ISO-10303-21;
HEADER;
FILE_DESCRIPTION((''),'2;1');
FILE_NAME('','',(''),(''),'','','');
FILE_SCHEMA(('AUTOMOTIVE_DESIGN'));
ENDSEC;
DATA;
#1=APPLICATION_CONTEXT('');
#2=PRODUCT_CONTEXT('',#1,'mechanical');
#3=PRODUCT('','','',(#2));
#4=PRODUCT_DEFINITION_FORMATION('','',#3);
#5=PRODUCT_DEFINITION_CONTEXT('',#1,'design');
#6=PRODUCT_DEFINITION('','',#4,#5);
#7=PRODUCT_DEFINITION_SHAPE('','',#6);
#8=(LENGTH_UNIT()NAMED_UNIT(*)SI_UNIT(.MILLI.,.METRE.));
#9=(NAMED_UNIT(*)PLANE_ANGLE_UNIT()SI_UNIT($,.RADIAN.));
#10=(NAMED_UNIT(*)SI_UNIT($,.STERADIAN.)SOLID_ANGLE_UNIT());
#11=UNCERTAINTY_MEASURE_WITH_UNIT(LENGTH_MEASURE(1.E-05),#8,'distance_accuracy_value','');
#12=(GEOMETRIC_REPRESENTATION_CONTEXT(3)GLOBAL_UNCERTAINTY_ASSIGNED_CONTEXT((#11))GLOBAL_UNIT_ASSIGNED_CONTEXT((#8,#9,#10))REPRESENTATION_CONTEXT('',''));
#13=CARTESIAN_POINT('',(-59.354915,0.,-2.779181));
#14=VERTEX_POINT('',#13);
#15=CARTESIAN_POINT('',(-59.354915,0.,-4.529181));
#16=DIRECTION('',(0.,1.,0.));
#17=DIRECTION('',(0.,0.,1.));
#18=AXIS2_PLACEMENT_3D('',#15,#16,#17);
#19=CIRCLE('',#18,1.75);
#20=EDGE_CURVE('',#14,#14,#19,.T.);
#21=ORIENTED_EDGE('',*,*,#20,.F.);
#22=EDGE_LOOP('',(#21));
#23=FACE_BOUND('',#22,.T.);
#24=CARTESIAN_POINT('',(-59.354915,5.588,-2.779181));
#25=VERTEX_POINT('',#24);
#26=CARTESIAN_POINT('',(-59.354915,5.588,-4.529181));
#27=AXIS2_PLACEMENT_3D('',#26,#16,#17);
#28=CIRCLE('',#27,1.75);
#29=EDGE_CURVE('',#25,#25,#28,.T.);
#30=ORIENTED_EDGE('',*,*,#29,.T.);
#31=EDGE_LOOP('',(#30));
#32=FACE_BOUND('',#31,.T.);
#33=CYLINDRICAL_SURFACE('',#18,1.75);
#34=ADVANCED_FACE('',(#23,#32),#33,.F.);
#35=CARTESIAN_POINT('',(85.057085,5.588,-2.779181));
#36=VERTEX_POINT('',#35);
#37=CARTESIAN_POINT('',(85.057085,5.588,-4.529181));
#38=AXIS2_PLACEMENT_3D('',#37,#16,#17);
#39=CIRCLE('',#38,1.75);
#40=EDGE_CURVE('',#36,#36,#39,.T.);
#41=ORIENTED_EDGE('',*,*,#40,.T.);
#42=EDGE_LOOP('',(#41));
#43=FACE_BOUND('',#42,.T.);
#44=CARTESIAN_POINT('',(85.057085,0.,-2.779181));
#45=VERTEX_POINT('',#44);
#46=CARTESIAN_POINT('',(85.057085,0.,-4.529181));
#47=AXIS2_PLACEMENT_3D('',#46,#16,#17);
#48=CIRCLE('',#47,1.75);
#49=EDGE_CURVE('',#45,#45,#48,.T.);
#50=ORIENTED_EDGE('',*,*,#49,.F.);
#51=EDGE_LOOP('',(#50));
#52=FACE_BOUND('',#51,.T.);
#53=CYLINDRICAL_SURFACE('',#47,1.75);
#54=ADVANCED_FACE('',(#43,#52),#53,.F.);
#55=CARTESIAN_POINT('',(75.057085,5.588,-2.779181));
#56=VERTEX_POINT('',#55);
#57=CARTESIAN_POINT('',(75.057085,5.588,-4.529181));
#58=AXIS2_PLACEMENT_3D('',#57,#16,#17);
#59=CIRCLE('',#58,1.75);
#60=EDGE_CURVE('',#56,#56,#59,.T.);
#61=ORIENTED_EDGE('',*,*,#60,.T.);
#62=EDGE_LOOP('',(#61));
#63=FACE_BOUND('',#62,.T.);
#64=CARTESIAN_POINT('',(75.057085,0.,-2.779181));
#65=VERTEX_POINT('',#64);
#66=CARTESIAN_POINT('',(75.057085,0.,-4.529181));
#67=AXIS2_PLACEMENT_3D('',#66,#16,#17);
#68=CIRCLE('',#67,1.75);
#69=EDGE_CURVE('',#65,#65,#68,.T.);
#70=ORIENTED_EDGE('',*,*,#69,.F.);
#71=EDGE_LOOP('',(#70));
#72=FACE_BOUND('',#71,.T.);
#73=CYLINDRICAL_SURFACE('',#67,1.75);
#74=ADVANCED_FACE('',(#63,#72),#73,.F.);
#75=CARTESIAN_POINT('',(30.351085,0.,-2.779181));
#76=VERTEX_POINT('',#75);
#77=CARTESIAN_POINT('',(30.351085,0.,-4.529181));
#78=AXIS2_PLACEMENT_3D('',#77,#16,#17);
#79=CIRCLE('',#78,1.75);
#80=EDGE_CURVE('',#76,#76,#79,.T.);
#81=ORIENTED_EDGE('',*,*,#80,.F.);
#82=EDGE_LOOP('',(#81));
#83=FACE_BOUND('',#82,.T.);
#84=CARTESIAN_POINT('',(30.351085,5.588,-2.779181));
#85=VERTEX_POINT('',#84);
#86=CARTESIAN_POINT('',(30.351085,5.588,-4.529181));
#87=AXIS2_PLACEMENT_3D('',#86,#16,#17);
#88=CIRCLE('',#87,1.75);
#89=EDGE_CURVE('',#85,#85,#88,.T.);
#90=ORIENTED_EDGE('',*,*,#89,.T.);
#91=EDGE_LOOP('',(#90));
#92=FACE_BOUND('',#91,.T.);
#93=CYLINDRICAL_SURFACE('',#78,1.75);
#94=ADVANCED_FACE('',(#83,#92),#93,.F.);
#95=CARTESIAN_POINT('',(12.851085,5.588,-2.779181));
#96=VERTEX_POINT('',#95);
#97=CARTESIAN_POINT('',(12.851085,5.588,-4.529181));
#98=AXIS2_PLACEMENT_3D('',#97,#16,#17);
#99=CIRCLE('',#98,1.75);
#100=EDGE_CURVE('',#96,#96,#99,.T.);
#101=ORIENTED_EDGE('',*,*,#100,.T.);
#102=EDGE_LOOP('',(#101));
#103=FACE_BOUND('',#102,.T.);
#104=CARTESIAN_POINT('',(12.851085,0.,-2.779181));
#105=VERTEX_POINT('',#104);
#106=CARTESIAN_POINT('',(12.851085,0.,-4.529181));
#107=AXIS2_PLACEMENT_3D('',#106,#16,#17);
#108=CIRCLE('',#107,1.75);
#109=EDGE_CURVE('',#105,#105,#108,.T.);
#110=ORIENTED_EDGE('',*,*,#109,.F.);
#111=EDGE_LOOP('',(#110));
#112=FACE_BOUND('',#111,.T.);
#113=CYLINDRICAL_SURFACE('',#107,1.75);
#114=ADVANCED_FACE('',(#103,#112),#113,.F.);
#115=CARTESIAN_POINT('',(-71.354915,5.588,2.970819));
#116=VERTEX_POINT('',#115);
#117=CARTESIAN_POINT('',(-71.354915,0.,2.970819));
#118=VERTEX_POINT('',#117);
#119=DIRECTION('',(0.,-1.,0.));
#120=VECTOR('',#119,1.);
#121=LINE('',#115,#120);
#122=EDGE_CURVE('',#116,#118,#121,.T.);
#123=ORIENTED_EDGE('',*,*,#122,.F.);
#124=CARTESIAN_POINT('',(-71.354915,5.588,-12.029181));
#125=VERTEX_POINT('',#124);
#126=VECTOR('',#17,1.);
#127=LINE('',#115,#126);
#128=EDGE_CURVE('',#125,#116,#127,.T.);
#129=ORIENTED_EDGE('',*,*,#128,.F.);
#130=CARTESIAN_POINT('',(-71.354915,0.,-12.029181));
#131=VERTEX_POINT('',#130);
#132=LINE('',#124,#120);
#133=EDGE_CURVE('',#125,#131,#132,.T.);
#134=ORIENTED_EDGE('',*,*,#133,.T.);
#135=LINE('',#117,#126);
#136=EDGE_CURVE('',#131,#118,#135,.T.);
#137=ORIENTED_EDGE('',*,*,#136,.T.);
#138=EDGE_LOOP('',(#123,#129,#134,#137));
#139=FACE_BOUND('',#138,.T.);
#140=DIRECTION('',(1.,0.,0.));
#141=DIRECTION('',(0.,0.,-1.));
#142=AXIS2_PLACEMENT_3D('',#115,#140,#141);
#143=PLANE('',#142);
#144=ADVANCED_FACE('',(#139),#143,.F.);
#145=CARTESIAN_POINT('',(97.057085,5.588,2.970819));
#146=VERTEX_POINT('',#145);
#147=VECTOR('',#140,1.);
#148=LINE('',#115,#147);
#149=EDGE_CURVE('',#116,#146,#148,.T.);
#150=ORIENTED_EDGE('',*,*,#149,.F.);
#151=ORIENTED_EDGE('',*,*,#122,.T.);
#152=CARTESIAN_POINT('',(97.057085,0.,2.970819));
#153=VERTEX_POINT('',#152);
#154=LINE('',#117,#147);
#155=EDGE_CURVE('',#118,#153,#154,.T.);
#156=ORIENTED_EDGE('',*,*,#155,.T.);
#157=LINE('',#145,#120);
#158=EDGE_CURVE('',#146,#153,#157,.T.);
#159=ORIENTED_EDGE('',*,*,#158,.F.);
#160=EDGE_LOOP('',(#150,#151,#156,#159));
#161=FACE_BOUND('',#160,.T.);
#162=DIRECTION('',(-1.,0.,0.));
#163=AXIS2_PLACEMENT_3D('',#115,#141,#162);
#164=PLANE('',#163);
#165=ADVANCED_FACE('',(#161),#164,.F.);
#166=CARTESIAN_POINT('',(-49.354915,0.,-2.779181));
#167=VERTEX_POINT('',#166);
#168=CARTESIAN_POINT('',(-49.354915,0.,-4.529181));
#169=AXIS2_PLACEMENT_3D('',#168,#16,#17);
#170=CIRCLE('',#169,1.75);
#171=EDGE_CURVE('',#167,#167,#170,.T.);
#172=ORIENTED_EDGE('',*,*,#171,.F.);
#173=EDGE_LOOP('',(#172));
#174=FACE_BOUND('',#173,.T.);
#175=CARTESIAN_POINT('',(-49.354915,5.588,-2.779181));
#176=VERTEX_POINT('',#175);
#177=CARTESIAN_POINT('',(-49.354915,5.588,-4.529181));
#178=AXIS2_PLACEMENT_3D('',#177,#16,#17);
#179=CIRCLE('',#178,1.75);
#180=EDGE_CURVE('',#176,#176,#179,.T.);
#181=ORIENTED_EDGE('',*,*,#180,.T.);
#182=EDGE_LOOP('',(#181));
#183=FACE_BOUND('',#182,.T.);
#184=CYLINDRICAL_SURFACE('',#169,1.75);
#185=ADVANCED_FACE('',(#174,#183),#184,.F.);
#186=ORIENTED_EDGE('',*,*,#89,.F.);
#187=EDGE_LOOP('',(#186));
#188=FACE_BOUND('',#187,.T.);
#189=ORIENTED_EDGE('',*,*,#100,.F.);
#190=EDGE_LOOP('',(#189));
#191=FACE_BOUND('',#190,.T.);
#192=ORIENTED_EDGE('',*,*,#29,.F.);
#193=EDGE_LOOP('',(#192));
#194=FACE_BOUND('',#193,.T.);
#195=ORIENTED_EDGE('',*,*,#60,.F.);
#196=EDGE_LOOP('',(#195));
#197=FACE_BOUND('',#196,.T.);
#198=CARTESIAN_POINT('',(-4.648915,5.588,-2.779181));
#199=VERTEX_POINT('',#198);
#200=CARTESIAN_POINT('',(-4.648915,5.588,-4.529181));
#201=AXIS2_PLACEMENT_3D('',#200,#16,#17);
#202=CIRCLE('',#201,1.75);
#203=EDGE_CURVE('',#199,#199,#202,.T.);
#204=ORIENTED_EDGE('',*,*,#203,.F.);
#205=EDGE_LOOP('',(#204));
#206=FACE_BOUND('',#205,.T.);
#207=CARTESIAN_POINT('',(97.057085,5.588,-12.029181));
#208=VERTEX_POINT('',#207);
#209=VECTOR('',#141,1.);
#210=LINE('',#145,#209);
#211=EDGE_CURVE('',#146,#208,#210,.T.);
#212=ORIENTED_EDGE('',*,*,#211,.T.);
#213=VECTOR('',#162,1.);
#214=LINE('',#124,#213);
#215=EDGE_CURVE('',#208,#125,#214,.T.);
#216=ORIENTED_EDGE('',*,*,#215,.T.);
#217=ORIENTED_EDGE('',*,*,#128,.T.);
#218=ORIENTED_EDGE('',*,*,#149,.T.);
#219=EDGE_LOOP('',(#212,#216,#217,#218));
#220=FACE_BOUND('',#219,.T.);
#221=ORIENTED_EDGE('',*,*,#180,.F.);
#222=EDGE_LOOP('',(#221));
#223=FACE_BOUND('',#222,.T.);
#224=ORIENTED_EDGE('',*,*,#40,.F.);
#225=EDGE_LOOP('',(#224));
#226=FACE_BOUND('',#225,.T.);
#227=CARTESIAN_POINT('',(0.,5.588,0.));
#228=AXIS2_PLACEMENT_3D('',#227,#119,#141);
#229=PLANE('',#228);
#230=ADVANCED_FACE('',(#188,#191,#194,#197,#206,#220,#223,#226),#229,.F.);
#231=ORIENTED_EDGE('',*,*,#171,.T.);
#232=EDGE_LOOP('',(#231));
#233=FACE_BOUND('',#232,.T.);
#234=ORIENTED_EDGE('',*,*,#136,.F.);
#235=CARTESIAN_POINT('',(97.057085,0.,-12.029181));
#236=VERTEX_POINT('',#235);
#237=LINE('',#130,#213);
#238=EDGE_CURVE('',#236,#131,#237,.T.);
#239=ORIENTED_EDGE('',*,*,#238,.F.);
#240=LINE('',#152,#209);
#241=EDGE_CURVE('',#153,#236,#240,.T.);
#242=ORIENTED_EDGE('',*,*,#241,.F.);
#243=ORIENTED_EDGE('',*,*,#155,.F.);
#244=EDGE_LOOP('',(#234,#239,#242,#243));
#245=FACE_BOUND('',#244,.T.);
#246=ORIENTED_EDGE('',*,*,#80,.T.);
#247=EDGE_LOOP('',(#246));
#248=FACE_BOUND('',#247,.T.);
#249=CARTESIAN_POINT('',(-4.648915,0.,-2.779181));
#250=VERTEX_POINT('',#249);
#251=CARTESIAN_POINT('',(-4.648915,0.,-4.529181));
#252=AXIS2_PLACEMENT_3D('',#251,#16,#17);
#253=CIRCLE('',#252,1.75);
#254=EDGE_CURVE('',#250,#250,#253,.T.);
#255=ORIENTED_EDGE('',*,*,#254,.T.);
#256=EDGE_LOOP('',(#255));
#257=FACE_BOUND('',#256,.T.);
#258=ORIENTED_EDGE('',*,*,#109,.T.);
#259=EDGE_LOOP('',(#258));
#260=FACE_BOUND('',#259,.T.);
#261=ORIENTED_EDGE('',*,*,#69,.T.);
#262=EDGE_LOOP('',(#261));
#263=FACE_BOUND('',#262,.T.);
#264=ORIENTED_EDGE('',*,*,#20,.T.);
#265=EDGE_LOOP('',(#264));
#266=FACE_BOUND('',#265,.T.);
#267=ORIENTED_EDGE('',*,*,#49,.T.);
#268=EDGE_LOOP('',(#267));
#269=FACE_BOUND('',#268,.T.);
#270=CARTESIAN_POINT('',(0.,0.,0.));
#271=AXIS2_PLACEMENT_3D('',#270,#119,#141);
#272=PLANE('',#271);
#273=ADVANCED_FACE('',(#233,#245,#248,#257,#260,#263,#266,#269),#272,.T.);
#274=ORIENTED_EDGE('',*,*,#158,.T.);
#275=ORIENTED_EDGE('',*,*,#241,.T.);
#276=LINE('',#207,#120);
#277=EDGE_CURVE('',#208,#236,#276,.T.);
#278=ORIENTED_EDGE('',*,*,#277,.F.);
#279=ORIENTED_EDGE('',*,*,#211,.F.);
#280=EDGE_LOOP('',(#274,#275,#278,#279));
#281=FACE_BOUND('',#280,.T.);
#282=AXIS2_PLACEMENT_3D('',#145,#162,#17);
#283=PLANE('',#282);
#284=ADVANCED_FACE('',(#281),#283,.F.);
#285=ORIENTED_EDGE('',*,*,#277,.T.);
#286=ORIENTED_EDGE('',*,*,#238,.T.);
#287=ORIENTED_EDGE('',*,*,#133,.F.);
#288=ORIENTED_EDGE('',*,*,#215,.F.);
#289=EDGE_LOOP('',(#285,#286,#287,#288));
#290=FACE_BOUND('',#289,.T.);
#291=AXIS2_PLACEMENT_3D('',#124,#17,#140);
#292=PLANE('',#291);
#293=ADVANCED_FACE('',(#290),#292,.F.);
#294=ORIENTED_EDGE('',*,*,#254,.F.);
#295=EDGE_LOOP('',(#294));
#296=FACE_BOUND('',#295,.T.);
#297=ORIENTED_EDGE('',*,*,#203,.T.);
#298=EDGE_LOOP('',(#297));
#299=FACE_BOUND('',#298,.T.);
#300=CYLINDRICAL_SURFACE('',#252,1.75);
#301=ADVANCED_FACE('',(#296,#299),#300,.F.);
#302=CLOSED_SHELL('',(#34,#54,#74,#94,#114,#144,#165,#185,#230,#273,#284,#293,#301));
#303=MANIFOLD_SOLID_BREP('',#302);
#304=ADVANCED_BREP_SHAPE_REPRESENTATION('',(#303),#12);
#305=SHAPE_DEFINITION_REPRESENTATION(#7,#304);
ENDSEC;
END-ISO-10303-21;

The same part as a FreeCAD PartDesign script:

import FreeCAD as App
import Part
import Sketcher

doc = App.newDocument("Part")
params = doc.addObject("Spreadsheet::Sheet", "Params")
for row, (alias, value) in enumerate([
    ("sketch1_height", "15 mm"),
    ("pad1_length", "5.588 mm"),
    ("sketch2_diameter", "3.5 mm"),
    ("sketch3_diameter", "3.5 mm"),
], start=1):
    params.set(f"A{row}", alias)
    params.set(f"B{row}", "=" + value)
    params.setAlias(f"B{row}", alias)

body = doc.addObject("PartDesign::Body", "Body")

# Sketch on XZ plane
sketch1 = doc.addObject("Sketcher::SketchObject", "Sketch")
body.addObject(sketch1)
sketch1.AttachmentSupport = (doc.XZ_Plane, [""])
sketch1.MapMode = "FlatFace"
sketch1.addGeometry([
    Part.LineSegment(App.Vector(-71, -12, 0), App.Vector(-71, 3, 0)),
    Part.LineSegment(App.Vector(-71, 3, 0), App.Vector(97, 3, 0)),
    Part.LineSegment(App.Vector(97, 3, 0), App.Vector(97, -12, 0)),
    Part.LineSegment(App.Vector(97, -12, 0), App.Vector(-71, -12, 0)),
], False)
sketch1.addConstraint([
    Sketcher.Constraint("Coincident", 0, 2, 1, 1),
    Sketcher.Constraint("Coincident", 1, 2, 2, 1),
    Sketcher.Constraint("Coincident", 2, 2, 3, 1),
    Sketcher.Constraint("Coincident", 3, 2, 0, 1),
    Sketcher.Constraint("Vertical", 0),
    Sketcher.Constraint("Horizontal", 1),
    Sketcher.Constraint("Vertical", 2),
    Sketcher.Constraint("Horizontal", 3),
    Sketcher.Constraint("DistanceY", 0, 1, 0, 2, 15.0),
    Sketcher.Constraint("DistanceX", 1, 1, 1, 2, 168.412),
    Sketcher.Constraint("DistanceY", -1, 1, 0, 2, 2.970819),
    Sketcher.Constraint("DistanceX", 0, 2, -1, 1, 71.354915),
])
sketch1.setExpression("Constraints[8]", "Params.sketch1_height")
pad1 = doc.addObject("PartDesign::Pad", "Pad")
body.addObject(pad1)
pad1.Profile = sketch1
pad1.setExpression("Length", "Params.pad1_length")
pad1.Reversed = True

# Sketch on XZ plane
sketch2 = doc.addObject("Sketcher::SketchObject", "Sketch001")
body.addObject(sketch2)
sketch2.AttachmentSupport = (doc.XZ_Plane, [""])
sketch2.MapMode = "FlatFace"
sketch2.AttachmentOffset = App.Placement(App.Vector(0, 0, -5.588), App.Rotation())
sketch2.addGeometry([
    Part.Circle(App.Vector(-59.4, -4.5, 0), App.Vector(0, 0, 1), 1.8),
    Part.Circle(App.Vector(-49.4, -4.5, 0), App.Vector(0, 0, 1), 1.8),
    Part.Circle(App.Vector(75.1, -4.5, 0), App.Vector(0, 0, 1), 1.8),
    Part.Circle(App.Vector(85.1, -4.5, 0), App.Vector(0, 0, 1), 1.8),
], False)
sketch2.addConstraint([
    Sketcher.Constraint("Equal", 0, 1),
    Sketcher.Constraint("Equal", 1, 2),
    Sketcher.Constraint("Equal", 2, 3),
    Sketcher.Constraint("Horizontal", 0, 3, 1, 3),
    Sketcher.Constraint("Horizontal", 1, 3, 2, 3),
    Sketcher.Constraint("Horizontal", 2, 3, 3, 3),
    Sketcher.Constraint("Diameter", 0, 3.5),
    Sketcher.Constraint("DistanceX", 0, 3, 1, 3, 10.0),
    Sketcher.Constraint("DistanceX", 2, 3, 3, 3, 10.0),
    Sketcher.Constraint("DistanceX", 1, 3, 2, 3, 124.412),
    Sketcher.Constraint("DistanceY", 0, 3, -1, 1, 4.529181),
    Sketcher.Constraint("DistanceX", 0, 3, -1, 1, 59.354915),
])
sketch2.setExpression("Constraints[6]", "Params.sketch2_diameter")
pocket1 = doc.addObject("PartDesign::Pocket", "Pocket")
body.addObject(pocket1)
pocket1.Profile = sketch2
pocket1.Type = "ThroughAll"
pocket1.Reversed = True

# Sketch on XZ plane
sketch3 = doc.addObject("Sketcher::SketchObject", "Sketch002")
body.addObject(sketch3)
sketch3.AttachmentSupport = (doc.XZ_Plane, [""])
sketch3.MapMode = "FlatFace"
sketch3.AttachmentOffset = App.Placement(App.Vector(0, 0, -5.588), App.Rotation())
sketch3.addGeometry([
    Part.Circle(App.Vector(-4.6, -4.5, 0), App.Vector(0, 0, 1), 1.8),
    Part.Circle(App.Vector(30.4, -4.5, 0), App.Vector(0, 0, 1), 1.8),
    Part.Circle(App.Vector(12.9, -4.5, 0), App.Vector(0, 0, 1), 1.8),
], False)
sketch3.addConstraint([
    Sketcher.Constraint("Equal", 0, 1),
    Sketcher.Constraint("Equal", 1, 2),
    Sketcher.Constraint("Horizontal", 0, 3, 1, 3),
    Sketcher.Constraint("Horizontal", 1, 3, 2, 3),
    Sketcher.Constraint("Diameter", 0, 3.5),
    Sketcher.Constraint("DistanceX", 0, 3, 1, 3, 35.0),
    Sketcher.Constraint("DistanceX", 0, 3, 2, 3, 17.5),
    Sketcher.Constraint("DistanceY", 0, 3, -1, 1, 4.529181),
    Sketcher.Constraint("DistanceX", 0, 3, -1, 1, 4.648915),
])
sketch3.setExpression("Constraints[4]", "Params.sketch3_diameter")
pocket2 = doc.addObject("PartDesign::Pocket", "Pocket001")
body.addObject(pocket2)
pocket2.Profile = sketch3
pocket2.Type = "ThroughAll"
pocket2.Reversed = True

doc.recompute()
